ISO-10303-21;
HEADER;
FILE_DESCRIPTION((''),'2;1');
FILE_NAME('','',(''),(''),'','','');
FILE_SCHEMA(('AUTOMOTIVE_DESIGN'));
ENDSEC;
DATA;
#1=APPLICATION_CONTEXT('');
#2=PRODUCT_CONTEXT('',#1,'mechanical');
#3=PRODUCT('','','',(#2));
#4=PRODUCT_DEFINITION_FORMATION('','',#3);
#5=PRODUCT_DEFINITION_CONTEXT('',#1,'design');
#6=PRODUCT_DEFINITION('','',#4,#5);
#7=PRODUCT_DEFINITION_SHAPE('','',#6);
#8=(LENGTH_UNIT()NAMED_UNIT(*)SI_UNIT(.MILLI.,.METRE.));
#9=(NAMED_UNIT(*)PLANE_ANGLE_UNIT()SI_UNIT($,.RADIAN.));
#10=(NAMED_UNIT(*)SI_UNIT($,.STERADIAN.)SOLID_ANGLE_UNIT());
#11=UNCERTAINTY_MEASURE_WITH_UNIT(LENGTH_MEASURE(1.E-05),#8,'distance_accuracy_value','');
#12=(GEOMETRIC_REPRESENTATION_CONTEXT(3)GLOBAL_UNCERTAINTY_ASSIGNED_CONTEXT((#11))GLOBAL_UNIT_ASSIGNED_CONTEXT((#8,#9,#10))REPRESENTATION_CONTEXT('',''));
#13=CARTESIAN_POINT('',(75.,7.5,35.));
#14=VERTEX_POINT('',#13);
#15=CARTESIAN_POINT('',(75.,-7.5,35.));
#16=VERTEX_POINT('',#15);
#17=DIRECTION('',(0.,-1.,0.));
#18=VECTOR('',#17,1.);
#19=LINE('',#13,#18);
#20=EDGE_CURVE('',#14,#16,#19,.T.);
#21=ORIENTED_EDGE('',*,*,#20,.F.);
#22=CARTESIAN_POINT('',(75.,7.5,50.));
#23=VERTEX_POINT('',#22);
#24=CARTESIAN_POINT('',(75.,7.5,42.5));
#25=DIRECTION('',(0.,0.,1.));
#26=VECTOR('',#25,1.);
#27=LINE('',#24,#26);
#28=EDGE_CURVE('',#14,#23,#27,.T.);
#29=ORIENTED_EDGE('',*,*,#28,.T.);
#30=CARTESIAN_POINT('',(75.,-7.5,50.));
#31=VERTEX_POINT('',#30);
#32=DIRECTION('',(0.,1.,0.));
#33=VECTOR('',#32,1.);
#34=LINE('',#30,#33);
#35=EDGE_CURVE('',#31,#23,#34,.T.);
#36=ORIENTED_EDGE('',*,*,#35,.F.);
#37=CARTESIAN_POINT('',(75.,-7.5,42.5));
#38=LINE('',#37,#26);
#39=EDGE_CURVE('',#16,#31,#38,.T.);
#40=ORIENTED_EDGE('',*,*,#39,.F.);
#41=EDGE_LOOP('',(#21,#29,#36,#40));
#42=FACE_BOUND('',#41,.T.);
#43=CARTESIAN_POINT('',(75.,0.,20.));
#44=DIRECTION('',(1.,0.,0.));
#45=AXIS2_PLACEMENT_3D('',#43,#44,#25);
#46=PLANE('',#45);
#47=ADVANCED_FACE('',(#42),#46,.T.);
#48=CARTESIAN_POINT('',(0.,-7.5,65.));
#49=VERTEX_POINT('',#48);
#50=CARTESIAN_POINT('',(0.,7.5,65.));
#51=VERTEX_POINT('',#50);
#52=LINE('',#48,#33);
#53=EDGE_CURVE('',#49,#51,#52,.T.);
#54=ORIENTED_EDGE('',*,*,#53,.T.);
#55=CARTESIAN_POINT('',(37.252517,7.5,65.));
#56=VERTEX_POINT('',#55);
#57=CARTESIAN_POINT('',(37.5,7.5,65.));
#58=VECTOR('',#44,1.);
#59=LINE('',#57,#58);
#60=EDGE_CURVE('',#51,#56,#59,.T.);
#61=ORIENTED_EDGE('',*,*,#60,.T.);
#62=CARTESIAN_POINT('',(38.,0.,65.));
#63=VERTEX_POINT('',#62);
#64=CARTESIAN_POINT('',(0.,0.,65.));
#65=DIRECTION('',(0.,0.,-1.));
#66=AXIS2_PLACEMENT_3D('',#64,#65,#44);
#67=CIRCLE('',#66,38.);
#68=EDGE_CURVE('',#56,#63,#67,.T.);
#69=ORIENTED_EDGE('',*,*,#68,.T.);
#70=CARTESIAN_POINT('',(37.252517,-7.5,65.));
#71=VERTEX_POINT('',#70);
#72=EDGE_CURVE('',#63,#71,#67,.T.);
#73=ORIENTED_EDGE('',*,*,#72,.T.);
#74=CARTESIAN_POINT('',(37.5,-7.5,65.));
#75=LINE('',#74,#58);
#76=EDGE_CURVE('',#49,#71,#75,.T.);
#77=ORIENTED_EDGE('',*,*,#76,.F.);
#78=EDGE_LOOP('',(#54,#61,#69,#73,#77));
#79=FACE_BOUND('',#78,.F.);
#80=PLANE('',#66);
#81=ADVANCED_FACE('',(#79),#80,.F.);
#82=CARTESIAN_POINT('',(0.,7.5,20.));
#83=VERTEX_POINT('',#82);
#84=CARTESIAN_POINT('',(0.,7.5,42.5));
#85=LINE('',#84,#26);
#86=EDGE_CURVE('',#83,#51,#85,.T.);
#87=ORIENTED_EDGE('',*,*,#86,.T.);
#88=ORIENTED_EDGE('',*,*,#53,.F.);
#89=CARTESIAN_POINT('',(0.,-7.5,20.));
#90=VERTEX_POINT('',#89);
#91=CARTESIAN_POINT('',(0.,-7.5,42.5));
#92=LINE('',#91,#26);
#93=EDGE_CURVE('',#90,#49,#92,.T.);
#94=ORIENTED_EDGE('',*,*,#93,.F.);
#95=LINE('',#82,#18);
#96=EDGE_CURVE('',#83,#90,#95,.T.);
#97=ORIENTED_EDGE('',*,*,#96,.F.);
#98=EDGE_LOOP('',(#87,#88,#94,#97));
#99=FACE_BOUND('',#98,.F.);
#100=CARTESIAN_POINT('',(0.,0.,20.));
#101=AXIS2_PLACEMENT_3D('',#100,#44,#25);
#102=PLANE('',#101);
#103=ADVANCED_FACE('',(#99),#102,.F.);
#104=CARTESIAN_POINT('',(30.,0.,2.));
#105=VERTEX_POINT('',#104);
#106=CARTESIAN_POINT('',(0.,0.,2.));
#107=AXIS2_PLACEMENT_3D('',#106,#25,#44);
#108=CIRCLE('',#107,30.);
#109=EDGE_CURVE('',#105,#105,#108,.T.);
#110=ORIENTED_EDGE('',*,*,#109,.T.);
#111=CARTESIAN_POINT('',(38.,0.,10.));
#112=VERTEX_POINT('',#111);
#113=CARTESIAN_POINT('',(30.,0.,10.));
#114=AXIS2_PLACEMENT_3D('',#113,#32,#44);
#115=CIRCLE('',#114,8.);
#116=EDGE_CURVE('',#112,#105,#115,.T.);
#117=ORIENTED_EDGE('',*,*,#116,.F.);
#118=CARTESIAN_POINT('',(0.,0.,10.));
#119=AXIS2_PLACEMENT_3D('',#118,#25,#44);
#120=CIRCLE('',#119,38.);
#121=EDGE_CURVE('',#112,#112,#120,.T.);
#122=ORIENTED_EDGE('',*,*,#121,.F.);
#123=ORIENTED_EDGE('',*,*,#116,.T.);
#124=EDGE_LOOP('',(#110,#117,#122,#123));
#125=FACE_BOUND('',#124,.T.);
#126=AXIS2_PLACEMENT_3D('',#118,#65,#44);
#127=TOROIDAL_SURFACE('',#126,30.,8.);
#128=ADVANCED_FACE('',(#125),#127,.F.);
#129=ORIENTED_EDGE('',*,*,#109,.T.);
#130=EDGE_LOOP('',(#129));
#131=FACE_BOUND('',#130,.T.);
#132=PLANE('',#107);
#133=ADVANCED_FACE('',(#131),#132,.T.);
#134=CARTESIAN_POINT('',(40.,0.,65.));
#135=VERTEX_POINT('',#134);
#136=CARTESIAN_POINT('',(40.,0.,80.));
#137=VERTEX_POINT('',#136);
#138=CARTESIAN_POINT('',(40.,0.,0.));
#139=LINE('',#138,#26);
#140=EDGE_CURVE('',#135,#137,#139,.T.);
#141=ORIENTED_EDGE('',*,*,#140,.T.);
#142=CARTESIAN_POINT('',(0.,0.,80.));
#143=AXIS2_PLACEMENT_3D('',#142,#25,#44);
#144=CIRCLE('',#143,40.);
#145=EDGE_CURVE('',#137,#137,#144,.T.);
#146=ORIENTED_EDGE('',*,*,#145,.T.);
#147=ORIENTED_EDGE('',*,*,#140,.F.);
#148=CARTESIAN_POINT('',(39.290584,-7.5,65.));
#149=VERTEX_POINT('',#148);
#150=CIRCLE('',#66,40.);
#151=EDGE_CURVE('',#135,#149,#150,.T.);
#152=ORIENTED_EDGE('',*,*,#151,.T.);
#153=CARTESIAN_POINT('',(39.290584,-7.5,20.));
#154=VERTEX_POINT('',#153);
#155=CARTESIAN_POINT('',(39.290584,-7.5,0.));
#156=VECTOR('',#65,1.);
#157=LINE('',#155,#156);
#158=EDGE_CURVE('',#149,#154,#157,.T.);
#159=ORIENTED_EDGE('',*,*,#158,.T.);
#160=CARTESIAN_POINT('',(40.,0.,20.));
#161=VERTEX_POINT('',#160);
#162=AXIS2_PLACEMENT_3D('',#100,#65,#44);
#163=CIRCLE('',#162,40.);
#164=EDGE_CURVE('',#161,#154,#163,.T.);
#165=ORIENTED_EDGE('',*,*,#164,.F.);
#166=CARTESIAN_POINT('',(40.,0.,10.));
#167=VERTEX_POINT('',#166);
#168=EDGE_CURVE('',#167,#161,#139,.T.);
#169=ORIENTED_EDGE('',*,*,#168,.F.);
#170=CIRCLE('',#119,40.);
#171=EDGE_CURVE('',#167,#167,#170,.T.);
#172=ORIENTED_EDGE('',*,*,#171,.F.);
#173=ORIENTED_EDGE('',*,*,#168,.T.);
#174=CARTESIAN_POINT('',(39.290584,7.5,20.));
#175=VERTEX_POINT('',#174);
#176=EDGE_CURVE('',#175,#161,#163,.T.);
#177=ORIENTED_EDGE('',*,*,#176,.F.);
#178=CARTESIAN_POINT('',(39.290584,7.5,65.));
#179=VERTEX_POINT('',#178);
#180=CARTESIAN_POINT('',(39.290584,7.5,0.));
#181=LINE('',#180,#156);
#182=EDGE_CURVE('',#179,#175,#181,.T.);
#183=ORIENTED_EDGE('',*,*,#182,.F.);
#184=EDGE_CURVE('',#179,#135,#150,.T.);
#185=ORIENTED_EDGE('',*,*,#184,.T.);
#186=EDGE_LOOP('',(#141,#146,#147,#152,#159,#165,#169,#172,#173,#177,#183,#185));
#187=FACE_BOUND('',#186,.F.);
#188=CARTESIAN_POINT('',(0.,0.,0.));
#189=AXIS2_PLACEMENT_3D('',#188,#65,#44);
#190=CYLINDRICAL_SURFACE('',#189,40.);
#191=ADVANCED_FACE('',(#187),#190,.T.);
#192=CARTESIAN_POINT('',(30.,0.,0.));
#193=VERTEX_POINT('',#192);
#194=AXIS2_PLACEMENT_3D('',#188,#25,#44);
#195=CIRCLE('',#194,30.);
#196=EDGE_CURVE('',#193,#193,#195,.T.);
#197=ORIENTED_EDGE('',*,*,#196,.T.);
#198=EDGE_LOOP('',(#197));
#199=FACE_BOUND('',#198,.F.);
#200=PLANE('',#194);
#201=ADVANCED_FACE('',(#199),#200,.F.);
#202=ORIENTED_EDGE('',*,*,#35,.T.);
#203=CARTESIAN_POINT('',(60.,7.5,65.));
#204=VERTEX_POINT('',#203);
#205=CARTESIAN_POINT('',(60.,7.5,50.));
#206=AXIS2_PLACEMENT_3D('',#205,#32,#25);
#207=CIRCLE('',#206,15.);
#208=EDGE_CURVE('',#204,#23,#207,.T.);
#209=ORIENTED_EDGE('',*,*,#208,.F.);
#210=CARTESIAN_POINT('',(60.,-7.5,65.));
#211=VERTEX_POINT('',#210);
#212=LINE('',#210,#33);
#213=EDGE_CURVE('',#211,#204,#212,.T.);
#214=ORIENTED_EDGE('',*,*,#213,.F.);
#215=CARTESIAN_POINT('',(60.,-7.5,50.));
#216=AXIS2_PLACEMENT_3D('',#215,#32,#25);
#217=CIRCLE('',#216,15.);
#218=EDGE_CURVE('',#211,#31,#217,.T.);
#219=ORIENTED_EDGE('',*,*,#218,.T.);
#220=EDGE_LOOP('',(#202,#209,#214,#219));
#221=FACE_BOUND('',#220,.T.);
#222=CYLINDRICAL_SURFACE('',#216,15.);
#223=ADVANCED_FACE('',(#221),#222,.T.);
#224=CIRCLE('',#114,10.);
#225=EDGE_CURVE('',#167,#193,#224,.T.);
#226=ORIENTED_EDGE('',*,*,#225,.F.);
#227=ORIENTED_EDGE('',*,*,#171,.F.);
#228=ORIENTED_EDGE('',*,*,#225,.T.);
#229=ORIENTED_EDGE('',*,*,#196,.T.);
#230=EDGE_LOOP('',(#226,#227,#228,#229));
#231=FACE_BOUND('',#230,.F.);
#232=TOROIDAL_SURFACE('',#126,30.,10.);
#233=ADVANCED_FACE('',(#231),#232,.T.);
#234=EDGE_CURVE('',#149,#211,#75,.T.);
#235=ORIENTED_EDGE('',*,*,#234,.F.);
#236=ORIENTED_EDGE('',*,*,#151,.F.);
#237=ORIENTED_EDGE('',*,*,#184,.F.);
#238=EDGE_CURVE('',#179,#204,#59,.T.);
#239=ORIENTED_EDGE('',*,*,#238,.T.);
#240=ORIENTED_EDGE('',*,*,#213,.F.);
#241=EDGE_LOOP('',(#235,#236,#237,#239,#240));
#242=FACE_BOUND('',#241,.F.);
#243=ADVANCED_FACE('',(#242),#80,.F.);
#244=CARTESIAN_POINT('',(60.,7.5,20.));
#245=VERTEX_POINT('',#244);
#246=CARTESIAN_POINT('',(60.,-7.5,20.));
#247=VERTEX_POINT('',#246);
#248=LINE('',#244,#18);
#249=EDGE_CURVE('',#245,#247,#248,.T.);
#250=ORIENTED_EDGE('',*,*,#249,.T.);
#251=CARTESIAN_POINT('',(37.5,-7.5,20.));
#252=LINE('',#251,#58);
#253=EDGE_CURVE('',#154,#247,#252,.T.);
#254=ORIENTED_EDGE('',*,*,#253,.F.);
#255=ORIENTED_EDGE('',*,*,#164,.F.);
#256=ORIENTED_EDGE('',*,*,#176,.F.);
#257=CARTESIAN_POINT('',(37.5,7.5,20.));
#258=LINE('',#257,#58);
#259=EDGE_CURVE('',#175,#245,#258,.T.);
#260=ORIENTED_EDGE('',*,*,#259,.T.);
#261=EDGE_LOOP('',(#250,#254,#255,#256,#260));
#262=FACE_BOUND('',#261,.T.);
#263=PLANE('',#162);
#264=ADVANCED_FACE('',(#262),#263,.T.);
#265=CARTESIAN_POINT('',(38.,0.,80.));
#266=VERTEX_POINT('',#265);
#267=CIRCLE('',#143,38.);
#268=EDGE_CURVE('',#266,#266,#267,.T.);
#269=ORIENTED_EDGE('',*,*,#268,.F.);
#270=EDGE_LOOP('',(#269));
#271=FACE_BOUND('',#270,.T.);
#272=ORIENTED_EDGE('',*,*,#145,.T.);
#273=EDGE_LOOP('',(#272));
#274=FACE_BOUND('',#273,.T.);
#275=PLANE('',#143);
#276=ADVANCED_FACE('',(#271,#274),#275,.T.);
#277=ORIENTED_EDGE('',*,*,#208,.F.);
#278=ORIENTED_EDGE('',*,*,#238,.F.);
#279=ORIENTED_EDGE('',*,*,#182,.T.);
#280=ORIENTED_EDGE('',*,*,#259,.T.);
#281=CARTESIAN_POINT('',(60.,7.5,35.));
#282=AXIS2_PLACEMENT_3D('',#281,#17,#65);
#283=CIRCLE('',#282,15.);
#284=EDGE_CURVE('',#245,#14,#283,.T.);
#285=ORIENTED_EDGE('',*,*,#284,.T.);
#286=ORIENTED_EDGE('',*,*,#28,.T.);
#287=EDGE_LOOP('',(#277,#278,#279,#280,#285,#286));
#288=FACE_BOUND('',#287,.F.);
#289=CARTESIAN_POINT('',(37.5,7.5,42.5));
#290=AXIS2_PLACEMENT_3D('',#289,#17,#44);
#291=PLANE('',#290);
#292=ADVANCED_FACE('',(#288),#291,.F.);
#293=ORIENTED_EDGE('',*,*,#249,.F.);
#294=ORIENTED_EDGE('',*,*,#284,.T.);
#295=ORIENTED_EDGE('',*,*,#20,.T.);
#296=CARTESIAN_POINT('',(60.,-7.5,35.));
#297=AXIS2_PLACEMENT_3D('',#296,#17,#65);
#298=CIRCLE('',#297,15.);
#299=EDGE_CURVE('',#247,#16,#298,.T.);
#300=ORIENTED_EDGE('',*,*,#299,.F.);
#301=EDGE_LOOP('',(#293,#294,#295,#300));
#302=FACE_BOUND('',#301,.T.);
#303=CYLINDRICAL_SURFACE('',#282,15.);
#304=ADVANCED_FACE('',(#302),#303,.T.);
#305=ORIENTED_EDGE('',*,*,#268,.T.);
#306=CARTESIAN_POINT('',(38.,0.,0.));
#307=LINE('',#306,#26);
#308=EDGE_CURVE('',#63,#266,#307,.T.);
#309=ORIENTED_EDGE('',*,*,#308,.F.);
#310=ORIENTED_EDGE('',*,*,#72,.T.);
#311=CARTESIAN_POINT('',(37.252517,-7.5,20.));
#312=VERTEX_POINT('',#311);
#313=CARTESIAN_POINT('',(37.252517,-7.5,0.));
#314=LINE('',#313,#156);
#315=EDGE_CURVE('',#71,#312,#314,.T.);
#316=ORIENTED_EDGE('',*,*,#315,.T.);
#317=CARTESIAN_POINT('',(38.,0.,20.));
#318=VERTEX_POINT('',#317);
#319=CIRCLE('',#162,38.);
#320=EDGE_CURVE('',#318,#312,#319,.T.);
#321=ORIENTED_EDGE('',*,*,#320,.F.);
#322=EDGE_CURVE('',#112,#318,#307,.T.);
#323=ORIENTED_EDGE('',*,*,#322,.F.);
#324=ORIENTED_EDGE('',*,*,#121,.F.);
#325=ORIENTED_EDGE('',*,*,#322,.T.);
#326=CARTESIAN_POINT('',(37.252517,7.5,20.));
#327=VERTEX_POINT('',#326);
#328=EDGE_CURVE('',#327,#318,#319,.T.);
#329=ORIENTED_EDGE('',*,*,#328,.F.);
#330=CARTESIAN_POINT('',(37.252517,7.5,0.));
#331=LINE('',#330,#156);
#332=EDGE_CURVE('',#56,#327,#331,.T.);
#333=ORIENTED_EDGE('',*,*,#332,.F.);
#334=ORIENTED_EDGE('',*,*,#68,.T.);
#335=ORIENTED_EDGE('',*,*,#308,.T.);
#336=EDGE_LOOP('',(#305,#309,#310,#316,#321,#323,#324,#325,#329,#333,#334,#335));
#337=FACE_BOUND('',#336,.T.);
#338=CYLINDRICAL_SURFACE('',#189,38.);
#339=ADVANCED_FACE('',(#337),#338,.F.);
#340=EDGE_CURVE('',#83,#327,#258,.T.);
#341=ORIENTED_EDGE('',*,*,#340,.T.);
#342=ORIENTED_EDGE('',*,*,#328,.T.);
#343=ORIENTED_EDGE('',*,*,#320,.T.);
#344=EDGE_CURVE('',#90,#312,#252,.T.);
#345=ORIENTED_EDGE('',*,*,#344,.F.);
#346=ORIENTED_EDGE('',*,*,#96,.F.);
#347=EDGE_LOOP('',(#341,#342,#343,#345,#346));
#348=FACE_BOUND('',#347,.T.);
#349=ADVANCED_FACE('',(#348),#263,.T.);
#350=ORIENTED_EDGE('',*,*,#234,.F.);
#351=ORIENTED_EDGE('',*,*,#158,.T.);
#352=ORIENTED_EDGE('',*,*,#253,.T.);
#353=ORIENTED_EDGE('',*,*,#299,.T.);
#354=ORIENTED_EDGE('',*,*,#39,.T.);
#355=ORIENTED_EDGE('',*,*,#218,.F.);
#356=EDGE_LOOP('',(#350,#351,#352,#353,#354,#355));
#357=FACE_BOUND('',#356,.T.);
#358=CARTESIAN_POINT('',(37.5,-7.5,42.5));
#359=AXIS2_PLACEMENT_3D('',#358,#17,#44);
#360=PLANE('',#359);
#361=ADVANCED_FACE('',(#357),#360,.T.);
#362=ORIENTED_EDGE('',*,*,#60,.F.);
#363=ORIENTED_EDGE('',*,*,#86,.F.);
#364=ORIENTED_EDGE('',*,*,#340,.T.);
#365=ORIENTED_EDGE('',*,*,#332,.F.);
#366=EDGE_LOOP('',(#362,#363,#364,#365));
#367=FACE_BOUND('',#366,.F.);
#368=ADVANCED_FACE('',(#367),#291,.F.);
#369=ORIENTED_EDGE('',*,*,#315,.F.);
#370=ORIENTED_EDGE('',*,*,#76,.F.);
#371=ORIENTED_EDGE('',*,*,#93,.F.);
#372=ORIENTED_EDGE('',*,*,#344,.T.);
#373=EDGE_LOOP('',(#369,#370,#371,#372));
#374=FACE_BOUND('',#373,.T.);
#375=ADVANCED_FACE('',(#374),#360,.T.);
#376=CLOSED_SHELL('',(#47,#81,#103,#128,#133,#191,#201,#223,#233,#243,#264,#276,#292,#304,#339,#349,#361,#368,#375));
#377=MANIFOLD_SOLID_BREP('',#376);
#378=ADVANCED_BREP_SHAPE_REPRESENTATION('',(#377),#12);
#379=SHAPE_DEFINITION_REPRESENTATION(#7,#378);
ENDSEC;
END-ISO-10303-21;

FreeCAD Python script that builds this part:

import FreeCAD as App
import Part
import Sketcher
Q = App.Units.Quantity


def edges_at(feature, points):
    """Names of the edges that pass closest to the given points."""
    edges = feature.Shape.Edges
    near = lambda p: min(range(len(edges)), key=lambda i: edges[i].distToShape(Part.Vertex(*p))[0])
    return sorted({f"Edge{near(p) + 1}" for p in points})


def faces_at(feature, points):
    """Names of the faces that lie closest to the given points."""
    faces = feature.Shape.Faces
    near = lambda p: min(range(len(faces)), key=lambda i: faces[i].distToShape(Part.Vertex(*p))[0])
    return sorted({f"Face{near(p) + 1}" for p in points})


def add_polygon(sketch, points):
    """Adds a closed chain of lines whose ends are joined by coincident constraints."""
    first, n = sketch.GeometryCount, len(points)
    for a, b in zip(points, points[1:] + points[:1]):
        sketch.addGeometry(Part.LineSegment(App.Vector(*a, 0), App.Vector(*b, 0)), False)
    for i in range(n):
        sketch.addConstraint(Sketcher.Constraint("Coincident", first + i, 2, first + (i + 1) % n, 1))

doc = App.newDocument("Part")
params = doc.addObject("Spreadsheet::Sheet", "Params")
for row, (alias, value) in enumerate([
    ("sketch1_diameter", "80 mm"),
    ("pad1_length", "80 mm"),
    ("fillet_radius", "10 mm"),
    ("thickness_wall", "2 mm"),
    ("sketch2_width", "75 mm"),
    ("sketch2_height", "45 mm"),
    ("pad2_length", "15 mm"),
    ("fillet2_radius", "15 mm"),
], start=1):
    params.set(f"A{row}", alias)
    params.set(f"B{row}", "=" + value)
    params.setAlias(f"B{row}", alias)

body = doc.addObject("PartDesign::Body", "Body")

sketch1 = body.newObject("Sketcher::SketchObject", "Sketch")
sketch1.AttachmentSupport = (doc.getObject("XY_Plane"), [""])
sketch1.MapMode = "FlatFace"
sketch1.addGeometry(Part.Circle(App.Vector(0, 0, 0), App.Vector(0, 0, 1), 40), False)
sketch1.addConstraint([
    Sketcher.Constraint("Coincident", 0, 3, -1, 1),
    Sketcher.Constraint("Diameter", 0, Q("80 mm")),
])
sketch1.setExpression("Constraints[1]", "Params.sketch1_diameter")
pad1 = body.newObject("PartDesign::Pad", "Pad")
pad1.Profile = sketch1
pad1.setExpression("Length", "Params.pad1_length")
doc.recompute()

fillet = body.newObject("PartDesign::Fillet", "Fillet")
fillet.Base = (pad1, edges_at(pad1, [(-40, 0, 0)]))
fillet.setExpression("Radius", "Params.fillet_radius")
doc.recompute()

thickness = body.newObject("PartDesign::Thickness", "Thickness")
thickness.Base = (fillet, faces_at(fillet, [(0, 0, 80)]))
thickness.setExpression("Value", "Params.thickness_wall")
thickness.Reversed = True
thickness.Join = "Arc"

sketch2 = body.newObject("Sketcher::SketchObject", "Sketch001")
sketch2.AttachmentSupport = (doc.getObject("XZ_Plane"), [""])
sketch2.MapMode = "FlatFace"
add_polygon(sketch2, [(0, 65), (0, 20), (75, 20), (75, 65)])
sketch2.addConstraint([
    Sketcher.Constraint("Vertical", 0),
    Sketcher.Constraint("Horizontal", 1),
    Sketcher.Constraint("Vertical", 2),
    Sketcher.Constraint("Horizontal", 3),
    Sketcher.Constraint("PointOnObject", 0, 2, -2),
    Sketcher.Constraint("DistanceX", 1, 1, 1, 2, Q("75 mm")),
    Sketcher.Constraint("DistanceY", 0, 2, 0, 1, Q("45 mm")),
    Sketcher.Constraint("DistanceY", -1, 1, 0, 2, Q("20 mm")),
])
sketch2.setExpression("Constraints[9]", "Params.sketch2_width")
sketch2.setExpression("Constraints[10]", "Params.sketch2_height")
pad2 = body.newObject("PartDesign::Pad", "Pad001")
pad2.Profile = sketch2
pad2.setExpression("Length", "Params.pad2_length")
pad2.Midplane = True
doc.recompute()

fillet2 = body.newObject("PartDesign::Fillet", "Fillet001")
fillet2.Base = (pad2, edges_at(pad2, [(75, 0, 65), (75, 0, 20)]))
fillet2.setExpression("Radius", "Params.fillet2_radius")

doc.recompute()
